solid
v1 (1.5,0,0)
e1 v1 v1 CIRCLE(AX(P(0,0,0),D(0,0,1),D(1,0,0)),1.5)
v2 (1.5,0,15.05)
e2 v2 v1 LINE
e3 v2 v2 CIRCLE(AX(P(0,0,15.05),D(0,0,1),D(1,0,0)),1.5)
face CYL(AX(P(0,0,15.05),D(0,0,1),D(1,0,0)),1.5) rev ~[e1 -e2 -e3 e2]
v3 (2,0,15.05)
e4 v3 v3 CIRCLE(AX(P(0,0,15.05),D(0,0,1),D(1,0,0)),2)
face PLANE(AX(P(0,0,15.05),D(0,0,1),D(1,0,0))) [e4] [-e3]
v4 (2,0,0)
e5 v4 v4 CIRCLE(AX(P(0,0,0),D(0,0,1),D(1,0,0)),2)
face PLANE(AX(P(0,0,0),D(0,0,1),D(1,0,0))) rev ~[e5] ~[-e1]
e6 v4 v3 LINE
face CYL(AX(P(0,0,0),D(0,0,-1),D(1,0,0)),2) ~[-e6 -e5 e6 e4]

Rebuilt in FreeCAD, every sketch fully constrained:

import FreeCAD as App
import Part
import Sketcher

V = App.Vector
Q = App.Units.Quantity

doc = App.newDocument("Part")
params = doc.addObject("Spreadsheet::Sheet", "Params")
for row, (alias, value) in enumerate([
    ("sketch1_diameter", "4 mm"),
    ("pad1_length", "15.05 mm"),
    ("sketch2_diameter", "3 mm"),
    ("pocket1_length", "15.05 mm"),
], start=1):
    params.set(f"A{row}", alias)
    params.set(f"B{row}", "=" + value)
    params.setAlias(f"B{row}", alias)

body = doc.addObject("PartDesign::Body", "Body")

# Sketch on XY plane
sketch1 = body.newObject("Sketcher::SketchObject", "Sketch")
sketch1.AttachmentSupport = (doc.getObject("XY_Plane"), [""])
sketch1.MapMode = "FlatFace"
sketch1.addGeometry(Part.Circle(V(0, 0, 0), V(0, 0, 1), 2), False)
sketch1.addConstraint([
    Sketcher.Constraint("Coincident", 0, 3, -1, 1),
    Sketcher.Constraint("Diameter", 0, Q("4 mm")),
])
sketch1.setExpression("Constraints[1]", "Params.sketch1_diameter")
pad1 = body.newObject("PartDesign::Pad", "Pad")
pad1.Profile = sketch1
pad1.setExpression("Length", "Params.pad1_length")

# Sketch on XY plane
sketch2 = body.newObject("Sketcher::SketchObject", "Sketch001")
sketch2.AttachmentSupport = (doc.getObject("XY_Plane"), [""])
sketch2.MapMode = "FlatFace"
sketch2.AttachmentOffset = App.Placement(V(0, 0, 15.05), App.Rotation())
sketch2.addGeometry(Part.Circle(V(0, 0, 0), V(0, 0, 1), 1.5), False)
sketch2.addConstraint([
    Sketcher.Constraint("Coincident", 0, 3, -1, 1),
    Sketcher.Constraint("Diameter", 0, Q("3 mm")),
])
sketch2.setExpression("Constraints[1]", "Params.sketch2_diameter")
pocket1 = body.newObject("PartDesign::Pocket", "Pocket")
pocket1.Profile = sketch2
pocket1.setExpression("Length", "Params.pocket1_length")

doc.recompute()
